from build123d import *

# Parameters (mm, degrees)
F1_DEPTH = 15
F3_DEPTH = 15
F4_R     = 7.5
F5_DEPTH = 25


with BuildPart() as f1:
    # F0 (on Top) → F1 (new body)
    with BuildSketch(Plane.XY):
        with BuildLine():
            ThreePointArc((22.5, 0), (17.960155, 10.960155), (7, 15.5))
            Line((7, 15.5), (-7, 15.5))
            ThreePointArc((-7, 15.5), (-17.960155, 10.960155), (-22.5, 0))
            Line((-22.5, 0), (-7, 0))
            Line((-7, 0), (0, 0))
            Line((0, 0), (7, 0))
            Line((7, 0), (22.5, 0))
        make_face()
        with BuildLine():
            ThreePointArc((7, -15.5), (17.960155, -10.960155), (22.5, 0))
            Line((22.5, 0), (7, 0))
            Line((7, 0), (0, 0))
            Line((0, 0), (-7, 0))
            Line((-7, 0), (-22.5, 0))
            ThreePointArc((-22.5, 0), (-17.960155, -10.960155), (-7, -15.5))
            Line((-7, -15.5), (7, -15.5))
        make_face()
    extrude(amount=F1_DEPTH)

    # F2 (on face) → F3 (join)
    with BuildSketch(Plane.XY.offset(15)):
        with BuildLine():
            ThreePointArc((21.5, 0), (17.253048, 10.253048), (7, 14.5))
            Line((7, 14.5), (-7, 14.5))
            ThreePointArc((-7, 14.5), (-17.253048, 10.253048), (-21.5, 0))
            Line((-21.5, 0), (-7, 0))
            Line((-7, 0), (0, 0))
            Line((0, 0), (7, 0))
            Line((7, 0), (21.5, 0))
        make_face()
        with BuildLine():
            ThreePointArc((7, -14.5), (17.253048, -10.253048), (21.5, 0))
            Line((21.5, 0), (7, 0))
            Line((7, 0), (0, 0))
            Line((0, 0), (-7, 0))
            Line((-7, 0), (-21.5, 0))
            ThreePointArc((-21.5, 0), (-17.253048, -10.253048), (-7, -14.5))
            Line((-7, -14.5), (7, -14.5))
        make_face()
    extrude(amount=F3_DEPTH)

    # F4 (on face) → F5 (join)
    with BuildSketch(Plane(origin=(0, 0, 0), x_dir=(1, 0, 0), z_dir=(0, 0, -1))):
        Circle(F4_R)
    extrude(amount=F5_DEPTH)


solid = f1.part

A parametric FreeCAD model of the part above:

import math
import FreeCAD as App
import Part
import Sketcher
from FreeCAD import Vector
Q = App.Units.Quantity

doc = App.newDocument("Part")
body = doc.addObject("PartDesign::Body", "Body")

sketch1 = body.newObject("Sketcher::SketchObject", "Sketch")
sketch1.AttachmentSupport = (doc.getObject("XY_Plane"), [""])
sketch1.MapMode = "FlatFace"
sketch1.addGeometry([
    Part.ArcOfCircle(Part.Circle(Vector(7, 0, 0), Vector(0, 0, 1), 16), math.radians(0), math.radians(90)),
    Part.LineSegment(Vector(7, 16, 0), Vector(-7, 16, 0)),
    Part.ArcOfCircle(Part.Circle(Vector(-7, 0, 0), Vector(0, 0, 1), 16), math.radians(90), math.radians(180)),
    Part.ArcOfCircle(Part.Circle(Vector(-7, 0, 0), Vector(0, 0, 1), 16), math.radians(-180), math.radians(-90)),
    Part.LineSegment(Vector(-7, -16, 0), Vector(7, -16, 0)),
    Part.ArcOfCircle(Part.Circle(Vector(7, 0, 0), Vector(0, 0, 1), 16), math.radians(-90), math.radians(0)),
], False)
sketch1.addConstraint([
    Sketcher.Constraint("Tangent", 0, 2, 1, 1),
    Sketcher.Constraint("Tangent", 1, 2, 2, 1),
    Sketcher.Constraint("Tangent", 2, 2, 3, 1),
    Sketcher.Constraint("Tangent", 3, 2, 4, 1),
    Sketcher.Constraint("Tangent", 4, 2, 5, 1),
    Sketcher.Constraint("Tangent", 5, 2, 0, 1),
    Sketcher.Constraint("Horizontal", 1),
    Sketcher.Constraint("Horizontal", 4),
    Sketcher.Constraint("Equal", 0, 2),
    Sketcher.Constraint("Equal", 2, 3),
    Sketcher.Constraint("Symmetric", 0, 3, 2, 3, -1, 1),
    Sketcher.Constraint("PointOnObject", 2, 2, -1),
    Sketcher.Constraint("PointOnObject", 5, 2, -1),
    Sketcher.Constraint("Radius", 0, Q("15.5 mm")),
    Sketcher.Constraint("DistanceX", 1, 2, 1, 1, Q("14 mm")),
])
pad1 = body.newObject("PartDesign::Pad", "Pad")
pad1.Profile = sketch1
pad1.Length = 15

sketch2 = body.newObject("Sketcher::SketchObject", "Sketch001")
sketch2.AttachmentSupport = (doc.getObject("XY_Plane"), [""])
sketch2.MapMode = "FlatFace"
sketch2.AttachmentOffset = App.Placement(Vector(0, 0, 15), App.Rotation())
sketch2.addGeometry([
    Part.ArcOfCircle(Part.Circle(Vector(7, 0, 0), Vector(0, 0, 1), 15), math.radians(0), math.radians(90)),
    Part.LineSegment(Vector(7, 14, 0), Vector(-7, 14, 0)),
    Part.ArcOfCircle(Part.Circle(Vector(-7, 0, 0), Vector(0, 0, 1), 15), math.radians(90), math.radians(180)),
    Part.ArcOfCircle(Part.Circle(Vector(-7, 0, 0), Vector(0, 0, 1), 15), math.radians(-180), math.radians(-90)),
    Part.LineSegment(Vector(-7, -14, 0), Vector(7, -14, 0)),
    Part.ArcOfCircle(Part.Circle(Vector(7, 0, 0), Vector(0, 0, 1), 15), math.radians(-90), math.radians(0)),
], False)
sketch2.addConstraint([
    Sketcher.Constraint("Tangent", 0, 2, 1, 1),
    Sketcher.Constraint("Tangent", 1, 2, 2, 1),
    Sketcher.Constraint("Tangent", 2, 2, 3, 1),
    Sketcher.Constraint("Tangent", 3, 2, 4, 1),
    Sketcher.Constraint("Tangent", 4, 2, 5, 1),
    Sketcher.Constraint("Tangent", 5, 2, 0, 1),
    Sketcher.Constraint("Horizontal", 1),
    Sketcher.Constraint("Horizontal", 4),
    Sketcher.Constraint("Equal", 0, 2),
    Sketcher.Constraint("Equal", 2, 3),
    Sketcher.Constraint("Symmetric", 0, 3, 2, 3, -1, 1),
    Sketcher.Constraint("PointOnObject", 2, 2, -1),
    Sketcher.Constraint("PointOnObject", 5, 2, -1),
    Sketcher.Constraint("Radius", 0, Q("14.500001 mm")),
    Sketcher.Constraint("DistanceX", 1, 2, 1, 1, Q("14 mm")),
])
pad2 = body.newObject("PartDesign::Pad", "Pad001")
pad2.Profile = sketch2
pad2.Length = 15

sketch3 = body.newObject("Sketcher::SketchObject", "Sketch002")
sketch3.AttachmentSupport = (doc.getObject("XY_Plane"), [""])
sketch3.MapMode = "FlatFace"
sketch3.addGeometry(Part.Circle(Vector(0, 0, 0), Vector(0, 0, 1), 8), False)
sketch3.addConstraint([
    Sketcher.Constraint("Coincident", 0, 3, -1, 1),
    Sketcher.Constraint("Diameter", 0, Q("15 mm")),
])
pad3 = body.newObject("PartDesign::Pad", "Pad002")
pad3.Profile = sketch3
pad3.Length = 25
pad3.Reversed = True

doc.recompute()
